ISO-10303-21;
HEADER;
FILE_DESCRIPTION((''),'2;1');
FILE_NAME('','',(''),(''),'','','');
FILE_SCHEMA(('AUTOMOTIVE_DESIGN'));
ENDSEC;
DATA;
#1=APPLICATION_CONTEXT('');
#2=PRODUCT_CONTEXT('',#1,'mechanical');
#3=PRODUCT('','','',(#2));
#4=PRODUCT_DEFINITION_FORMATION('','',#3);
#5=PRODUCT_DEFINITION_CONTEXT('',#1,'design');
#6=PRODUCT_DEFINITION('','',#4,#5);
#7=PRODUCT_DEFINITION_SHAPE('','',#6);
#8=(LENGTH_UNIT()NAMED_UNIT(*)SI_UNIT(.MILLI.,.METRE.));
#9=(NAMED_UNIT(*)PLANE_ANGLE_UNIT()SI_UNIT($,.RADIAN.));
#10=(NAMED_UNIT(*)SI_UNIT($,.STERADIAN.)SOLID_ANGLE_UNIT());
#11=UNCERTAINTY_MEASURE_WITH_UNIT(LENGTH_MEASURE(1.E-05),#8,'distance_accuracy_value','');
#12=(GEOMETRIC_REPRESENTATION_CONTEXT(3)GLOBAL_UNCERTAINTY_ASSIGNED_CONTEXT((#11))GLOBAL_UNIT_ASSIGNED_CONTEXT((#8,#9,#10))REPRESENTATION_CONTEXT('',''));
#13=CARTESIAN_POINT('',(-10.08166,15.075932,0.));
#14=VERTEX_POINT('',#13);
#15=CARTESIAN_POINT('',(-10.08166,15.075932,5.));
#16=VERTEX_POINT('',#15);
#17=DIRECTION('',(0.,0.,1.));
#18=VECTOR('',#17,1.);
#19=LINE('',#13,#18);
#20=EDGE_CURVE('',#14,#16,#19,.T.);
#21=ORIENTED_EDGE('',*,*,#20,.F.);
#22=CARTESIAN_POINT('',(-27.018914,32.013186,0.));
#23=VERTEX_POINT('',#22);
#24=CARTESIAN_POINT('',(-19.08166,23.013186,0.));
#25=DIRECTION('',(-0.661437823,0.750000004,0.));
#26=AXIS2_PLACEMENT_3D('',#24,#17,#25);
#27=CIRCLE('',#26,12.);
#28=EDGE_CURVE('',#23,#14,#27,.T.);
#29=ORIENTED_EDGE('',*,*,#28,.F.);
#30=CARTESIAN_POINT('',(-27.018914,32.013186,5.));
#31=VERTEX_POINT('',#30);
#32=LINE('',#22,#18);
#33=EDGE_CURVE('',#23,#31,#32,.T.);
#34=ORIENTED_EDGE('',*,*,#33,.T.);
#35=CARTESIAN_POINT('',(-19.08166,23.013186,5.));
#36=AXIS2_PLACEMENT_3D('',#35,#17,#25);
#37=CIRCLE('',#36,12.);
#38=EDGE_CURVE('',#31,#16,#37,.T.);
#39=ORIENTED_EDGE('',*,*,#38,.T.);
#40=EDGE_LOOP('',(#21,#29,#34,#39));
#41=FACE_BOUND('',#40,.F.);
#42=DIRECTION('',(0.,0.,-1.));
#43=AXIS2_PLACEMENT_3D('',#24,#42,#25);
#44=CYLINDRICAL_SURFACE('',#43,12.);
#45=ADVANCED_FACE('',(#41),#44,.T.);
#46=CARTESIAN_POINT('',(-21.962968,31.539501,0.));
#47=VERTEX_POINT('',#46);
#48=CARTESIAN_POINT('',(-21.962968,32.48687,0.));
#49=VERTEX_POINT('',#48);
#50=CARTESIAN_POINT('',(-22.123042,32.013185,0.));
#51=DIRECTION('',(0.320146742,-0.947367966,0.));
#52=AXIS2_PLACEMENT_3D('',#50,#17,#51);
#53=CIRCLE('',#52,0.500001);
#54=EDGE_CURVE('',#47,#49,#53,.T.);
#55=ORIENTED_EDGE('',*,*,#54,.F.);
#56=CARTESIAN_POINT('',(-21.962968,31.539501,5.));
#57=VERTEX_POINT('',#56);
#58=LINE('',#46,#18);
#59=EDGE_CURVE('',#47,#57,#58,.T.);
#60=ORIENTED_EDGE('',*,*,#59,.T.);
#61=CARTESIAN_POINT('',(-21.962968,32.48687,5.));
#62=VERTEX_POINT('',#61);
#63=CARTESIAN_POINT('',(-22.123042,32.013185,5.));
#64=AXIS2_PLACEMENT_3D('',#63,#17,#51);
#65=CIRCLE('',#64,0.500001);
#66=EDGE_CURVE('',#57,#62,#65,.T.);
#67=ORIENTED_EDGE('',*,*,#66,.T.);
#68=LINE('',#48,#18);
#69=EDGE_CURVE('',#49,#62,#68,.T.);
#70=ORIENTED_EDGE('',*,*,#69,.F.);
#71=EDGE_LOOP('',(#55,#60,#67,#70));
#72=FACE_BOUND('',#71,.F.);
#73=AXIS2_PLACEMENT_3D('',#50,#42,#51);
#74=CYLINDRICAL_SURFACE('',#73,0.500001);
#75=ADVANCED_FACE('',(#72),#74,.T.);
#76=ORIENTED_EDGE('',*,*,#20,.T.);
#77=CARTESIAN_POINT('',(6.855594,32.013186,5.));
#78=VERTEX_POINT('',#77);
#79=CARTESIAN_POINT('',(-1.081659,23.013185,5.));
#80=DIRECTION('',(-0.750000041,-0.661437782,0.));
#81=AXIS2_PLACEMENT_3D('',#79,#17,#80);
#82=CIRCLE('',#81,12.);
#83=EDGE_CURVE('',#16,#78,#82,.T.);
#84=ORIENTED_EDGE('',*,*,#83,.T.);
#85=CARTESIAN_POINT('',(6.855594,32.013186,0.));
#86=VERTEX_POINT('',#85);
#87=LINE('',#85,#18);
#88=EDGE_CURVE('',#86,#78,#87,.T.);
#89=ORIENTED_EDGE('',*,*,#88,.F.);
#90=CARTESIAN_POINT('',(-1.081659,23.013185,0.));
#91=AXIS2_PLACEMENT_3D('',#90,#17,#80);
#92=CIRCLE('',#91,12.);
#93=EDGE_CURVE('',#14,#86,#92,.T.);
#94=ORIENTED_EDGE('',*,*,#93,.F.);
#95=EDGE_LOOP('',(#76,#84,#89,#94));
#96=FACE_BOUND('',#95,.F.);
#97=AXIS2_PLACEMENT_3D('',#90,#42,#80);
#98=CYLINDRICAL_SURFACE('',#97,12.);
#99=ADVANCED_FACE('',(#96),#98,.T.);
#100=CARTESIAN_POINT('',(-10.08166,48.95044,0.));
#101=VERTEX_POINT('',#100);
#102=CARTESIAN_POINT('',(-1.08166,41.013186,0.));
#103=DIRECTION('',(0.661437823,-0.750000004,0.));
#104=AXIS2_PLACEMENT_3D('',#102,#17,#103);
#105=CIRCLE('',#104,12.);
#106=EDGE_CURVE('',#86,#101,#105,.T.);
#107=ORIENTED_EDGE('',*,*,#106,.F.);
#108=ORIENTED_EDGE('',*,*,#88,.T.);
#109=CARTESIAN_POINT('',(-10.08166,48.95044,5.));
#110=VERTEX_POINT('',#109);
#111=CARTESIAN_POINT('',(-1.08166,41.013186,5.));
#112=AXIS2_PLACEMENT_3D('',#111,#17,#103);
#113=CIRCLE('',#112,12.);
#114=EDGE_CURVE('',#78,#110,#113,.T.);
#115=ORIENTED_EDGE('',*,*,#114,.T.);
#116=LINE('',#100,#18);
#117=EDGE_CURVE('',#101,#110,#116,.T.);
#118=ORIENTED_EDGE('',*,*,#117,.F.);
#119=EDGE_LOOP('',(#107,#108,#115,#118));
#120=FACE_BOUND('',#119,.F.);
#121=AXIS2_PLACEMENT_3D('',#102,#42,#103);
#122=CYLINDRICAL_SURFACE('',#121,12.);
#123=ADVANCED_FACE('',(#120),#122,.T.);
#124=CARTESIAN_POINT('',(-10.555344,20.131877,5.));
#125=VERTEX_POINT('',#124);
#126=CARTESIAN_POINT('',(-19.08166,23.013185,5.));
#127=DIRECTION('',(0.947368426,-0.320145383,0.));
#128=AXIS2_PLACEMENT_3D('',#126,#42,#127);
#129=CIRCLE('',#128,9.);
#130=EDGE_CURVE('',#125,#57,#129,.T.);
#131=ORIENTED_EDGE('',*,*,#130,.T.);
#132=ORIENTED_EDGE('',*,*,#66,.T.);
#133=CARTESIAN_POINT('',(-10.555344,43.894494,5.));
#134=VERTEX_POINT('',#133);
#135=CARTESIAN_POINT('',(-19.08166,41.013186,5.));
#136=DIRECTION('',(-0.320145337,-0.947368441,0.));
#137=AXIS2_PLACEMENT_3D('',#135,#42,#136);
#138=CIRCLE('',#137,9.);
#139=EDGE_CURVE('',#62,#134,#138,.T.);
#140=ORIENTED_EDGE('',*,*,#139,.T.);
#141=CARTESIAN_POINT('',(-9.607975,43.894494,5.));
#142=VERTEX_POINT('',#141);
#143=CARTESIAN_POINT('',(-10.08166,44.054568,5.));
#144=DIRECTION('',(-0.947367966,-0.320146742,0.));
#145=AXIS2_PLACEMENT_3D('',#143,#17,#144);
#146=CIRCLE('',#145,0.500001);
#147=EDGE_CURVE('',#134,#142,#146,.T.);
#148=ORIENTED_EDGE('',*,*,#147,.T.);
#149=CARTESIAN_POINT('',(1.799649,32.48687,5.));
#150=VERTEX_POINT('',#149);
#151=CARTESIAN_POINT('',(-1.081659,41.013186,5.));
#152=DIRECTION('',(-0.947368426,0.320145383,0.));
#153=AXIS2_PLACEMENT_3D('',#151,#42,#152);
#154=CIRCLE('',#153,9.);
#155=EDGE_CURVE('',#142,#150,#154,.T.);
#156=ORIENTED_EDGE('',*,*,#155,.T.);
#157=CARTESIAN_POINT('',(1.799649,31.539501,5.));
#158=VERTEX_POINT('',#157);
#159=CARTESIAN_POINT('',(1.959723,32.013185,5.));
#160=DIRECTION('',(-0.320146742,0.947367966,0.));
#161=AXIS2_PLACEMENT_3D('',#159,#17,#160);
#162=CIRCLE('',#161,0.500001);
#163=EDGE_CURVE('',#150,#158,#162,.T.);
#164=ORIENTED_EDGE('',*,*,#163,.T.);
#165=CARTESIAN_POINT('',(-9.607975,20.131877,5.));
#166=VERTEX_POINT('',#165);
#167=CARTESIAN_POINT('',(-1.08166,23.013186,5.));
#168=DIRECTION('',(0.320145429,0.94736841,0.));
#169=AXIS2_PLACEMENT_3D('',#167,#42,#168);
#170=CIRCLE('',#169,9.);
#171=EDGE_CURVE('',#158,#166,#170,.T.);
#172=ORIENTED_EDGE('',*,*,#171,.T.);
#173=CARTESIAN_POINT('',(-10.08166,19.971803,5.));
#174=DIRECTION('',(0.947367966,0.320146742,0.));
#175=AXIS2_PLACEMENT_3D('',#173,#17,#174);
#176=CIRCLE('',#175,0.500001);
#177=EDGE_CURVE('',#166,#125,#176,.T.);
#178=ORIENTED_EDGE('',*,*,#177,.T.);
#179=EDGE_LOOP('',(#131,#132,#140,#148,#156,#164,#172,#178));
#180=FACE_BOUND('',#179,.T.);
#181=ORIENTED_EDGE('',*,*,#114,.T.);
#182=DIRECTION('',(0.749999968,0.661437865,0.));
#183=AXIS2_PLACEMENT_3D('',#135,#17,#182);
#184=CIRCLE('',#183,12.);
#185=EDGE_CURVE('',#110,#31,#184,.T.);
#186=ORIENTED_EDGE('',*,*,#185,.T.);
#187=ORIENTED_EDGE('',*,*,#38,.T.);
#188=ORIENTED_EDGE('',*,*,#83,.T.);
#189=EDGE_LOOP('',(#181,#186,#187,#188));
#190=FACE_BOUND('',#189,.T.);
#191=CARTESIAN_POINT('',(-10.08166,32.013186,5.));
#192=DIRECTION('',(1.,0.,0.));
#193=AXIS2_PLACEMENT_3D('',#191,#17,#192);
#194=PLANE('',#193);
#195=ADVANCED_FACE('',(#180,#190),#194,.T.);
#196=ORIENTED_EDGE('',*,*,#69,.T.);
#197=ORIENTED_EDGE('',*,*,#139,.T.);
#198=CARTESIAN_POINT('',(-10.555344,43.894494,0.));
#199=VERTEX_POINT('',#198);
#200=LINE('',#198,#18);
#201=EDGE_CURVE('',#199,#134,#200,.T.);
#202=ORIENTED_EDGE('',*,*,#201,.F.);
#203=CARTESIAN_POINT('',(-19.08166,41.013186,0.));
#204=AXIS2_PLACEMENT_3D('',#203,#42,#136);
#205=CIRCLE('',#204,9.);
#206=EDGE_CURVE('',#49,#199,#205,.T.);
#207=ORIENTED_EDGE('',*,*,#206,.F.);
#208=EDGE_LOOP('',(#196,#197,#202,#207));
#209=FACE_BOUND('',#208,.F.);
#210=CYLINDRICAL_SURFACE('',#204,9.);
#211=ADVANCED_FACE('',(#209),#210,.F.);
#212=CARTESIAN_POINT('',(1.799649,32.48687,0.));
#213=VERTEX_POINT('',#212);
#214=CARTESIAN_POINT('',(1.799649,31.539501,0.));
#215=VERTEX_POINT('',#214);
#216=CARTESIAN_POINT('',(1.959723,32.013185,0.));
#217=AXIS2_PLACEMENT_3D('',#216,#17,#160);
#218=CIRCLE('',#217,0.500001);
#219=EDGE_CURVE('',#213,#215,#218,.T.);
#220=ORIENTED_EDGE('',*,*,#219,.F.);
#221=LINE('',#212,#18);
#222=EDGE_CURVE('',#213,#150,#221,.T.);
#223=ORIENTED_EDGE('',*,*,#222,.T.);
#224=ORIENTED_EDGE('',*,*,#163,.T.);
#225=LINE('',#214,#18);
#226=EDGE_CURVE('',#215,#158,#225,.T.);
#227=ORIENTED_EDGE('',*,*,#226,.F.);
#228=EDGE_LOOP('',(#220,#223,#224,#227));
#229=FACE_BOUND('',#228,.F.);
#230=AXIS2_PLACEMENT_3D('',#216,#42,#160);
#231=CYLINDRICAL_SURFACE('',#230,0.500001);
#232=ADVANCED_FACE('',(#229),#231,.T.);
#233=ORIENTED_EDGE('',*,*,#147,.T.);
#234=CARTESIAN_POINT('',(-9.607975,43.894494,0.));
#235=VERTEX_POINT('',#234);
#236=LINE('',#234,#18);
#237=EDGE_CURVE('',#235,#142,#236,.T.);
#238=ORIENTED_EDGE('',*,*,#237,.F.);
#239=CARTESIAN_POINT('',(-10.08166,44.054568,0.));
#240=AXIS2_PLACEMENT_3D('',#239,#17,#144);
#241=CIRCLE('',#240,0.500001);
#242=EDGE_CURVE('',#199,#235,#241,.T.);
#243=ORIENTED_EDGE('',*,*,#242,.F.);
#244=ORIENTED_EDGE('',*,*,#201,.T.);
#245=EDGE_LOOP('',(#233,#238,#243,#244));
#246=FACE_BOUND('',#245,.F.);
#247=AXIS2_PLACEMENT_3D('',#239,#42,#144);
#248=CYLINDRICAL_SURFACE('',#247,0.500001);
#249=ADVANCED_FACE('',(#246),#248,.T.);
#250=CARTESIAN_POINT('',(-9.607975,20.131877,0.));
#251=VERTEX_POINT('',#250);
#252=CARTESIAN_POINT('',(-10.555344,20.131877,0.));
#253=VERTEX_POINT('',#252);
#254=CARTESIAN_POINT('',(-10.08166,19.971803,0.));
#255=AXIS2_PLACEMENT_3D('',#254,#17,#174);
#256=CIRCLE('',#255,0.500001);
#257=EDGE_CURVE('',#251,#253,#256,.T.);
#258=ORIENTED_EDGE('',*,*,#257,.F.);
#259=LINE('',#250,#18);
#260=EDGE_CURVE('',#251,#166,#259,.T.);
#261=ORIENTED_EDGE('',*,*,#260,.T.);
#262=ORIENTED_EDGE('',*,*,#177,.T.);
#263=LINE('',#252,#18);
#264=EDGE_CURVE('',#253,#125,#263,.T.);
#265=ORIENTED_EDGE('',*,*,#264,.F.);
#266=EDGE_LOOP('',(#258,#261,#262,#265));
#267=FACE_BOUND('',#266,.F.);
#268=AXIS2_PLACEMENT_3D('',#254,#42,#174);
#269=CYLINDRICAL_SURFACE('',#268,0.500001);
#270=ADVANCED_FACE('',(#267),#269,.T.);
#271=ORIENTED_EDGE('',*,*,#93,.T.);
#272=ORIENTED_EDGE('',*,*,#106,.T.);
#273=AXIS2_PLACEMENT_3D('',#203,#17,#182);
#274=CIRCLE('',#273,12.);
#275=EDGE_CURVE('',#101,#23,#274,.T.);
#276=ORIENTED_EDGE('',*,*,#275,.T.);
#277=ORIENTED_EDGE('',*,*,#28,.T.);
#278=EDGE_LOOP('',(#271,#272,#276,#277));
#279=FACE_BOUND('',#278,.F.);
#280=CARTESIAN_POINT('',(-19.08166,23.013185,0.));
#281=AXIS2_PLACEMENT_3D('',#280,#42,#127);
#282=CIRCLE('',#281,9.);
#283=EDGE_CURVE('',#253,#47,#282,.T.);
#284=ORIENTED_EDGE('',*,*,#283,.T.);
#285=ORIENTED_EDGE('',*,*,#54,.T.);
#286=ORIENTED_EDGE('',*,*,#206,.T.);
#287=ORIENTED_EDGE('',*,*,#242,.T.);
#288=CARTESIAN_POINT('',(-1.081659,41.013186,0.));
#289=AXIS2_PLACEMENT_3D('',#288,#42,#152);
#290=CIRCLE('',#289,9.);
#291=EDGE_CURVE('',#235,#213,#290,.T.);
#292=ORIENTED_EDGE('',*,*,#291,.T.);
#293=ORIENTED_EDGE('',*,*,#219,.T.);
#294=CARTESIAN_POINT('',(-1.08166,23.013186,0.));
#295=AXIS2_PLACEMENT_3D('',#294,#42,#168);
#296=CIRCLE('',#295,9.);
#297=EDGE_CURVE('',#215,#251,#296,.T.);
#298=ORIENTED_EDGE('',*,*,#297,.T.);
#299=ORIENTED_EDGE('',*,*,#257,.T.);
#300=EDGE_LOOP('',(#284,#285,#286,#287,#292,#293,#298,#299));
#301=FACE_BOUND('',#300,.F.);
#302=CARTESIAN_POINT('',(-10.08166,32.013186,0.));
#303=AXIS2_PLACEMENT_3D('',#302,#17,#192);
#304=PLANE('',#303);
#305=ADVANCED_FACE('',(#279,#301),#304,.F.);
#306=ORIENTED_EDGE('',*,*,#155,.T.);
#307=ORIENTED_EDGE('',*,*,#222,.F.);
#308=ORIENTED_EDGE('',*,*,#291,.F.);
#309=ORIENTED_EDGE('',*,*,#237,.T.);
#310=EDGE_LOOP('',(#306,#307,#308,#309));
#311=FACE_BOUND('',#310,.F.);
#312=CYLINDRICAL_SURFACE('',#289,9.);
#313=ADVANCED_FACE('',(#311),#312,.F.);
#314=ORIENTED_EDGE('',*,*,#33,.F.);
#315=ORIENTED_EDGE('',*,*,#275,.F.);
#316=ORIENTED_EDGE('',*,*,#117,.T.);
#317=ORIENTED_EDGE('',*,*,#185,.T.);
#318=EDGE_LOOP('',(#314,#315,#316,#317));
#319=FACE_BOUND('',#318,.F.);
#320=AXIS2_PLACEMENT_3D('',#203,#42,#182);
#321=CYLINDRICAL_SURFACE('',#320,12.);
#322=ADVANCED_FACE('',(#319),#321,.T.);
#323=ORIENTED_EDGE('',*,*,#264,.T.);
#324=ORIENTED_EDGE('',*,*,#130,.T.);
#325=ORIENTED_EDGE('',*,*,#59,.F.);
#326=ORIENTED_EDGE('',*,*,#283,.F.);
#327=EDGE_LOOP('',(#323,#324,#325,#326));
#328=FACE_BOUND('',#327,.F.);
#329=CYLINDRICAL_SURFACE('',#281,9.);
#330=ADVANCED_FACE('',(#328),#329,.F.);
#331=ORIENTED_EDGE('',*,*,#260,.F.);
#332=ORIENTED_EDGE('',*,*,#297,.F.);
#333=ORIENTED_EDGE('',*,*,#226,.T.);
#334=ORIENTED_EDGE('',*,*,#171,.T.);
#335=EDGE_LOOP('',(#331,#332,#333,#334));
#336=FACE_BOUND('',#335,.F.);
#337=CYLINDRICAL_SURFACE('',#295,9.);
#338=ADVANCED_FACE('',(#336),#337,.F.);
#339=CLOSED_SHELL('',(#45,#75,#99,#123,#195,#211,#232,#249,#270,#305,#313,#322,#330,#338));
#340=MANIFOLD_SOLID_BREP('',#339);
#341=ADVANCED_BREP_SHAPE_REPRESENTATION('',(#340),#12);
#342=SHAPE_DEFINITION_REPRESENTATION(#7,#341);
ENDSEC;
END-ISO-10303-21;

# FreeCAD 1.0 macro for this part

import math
import FreeCAD as App
import Part
import Sketcher

doc = App.newDocument("Part")
params = doc.addObject("Spreadsheet::Sheet", "Params")
for row, (alias, value) in enumerate([
    ("sketch1_radius", "12 mm"),
    ("sketch1_radius2", "9 mm"),
    ("sketch1_radius3", "0.500001 mm"),
    ("pad1_length", "5 mm"),
], start=1):
    params.set(f"A{row}", alias)
    params.set(f"B{row}", "=" + value)
    params.setAlias(f"B{row}", alias)

body = doc.addObject("PartDesign::Body", "Body")

# Sketch on XY plane
sketch1 = doc.addObject("Sketcher::SketchObject", "Sketch")
body.addObject(sketch1)
sketch1.AttachmentSupport = (doc.XY_Plane, [""])
sketch1.MapMode = "FlatFace"
sketch1.addGeometry([
    Part.ArcOfCircle(Part.Circle(App.Vector(-1.1, 41, 0), App.Vector(0, 0, 1), 12), math.radians(-49), math.radians(139)),  # 0
    Part.ArcOfCircle(Part.Circle(App.Vector(-19.1, 41, 0), App.Vector(0, 0, 1), 12), math.radians(41), math.radians(229)),  # 1
    Part.ArcOfCircle(Part.Circle(App.Vector(-19.1, 23, 0), App.Vector(0, 0, 1), 12), math.radians(131), math.radians(319)),  # 2
    Part.ArcOfCircle(Part.Circle(App.Vector(-1.1, 23, 0), App.Vector(0, 0, 1), 12), math.radians(-139), math.radians(49)),  # 3
    Part.ArcOfCircle(Part.Circle(App.Vector(-10.1, 20, 0), App.Vector(0, 0, 1), 0.5), math.radians(19), math.radians(161)),  # 4
    Part.ArcOfCircle(Part.Circle(App.Vector(-19.1, 23, 0), App.Vector(0, 0, 1), 9), math.radians(109), math.radians(341)),  # 5
    Part.ArcOfCircle(Part.Circle(App.Vector(-22.1, 32, 0), App.Vector(0, 0, 1), 0.5), math.radians(-71), math.radians(71)),  # 6
    Part.ArcOfCircle(Part.Circle(App.Vector(-19.1, 41, 0), App.Vector(0, 0, 1), 9), math.radians(19), math.radians(251)),  # 7
    Part.ArcOfCircle(Part.Circle(App.Vector(-10.1, 44.1, 0), App.Vector(0, 0, 1), 0.5), math.radians(-161), math.radians(-19)),  # 8
    Part.ArcOfCircle(Part.Circle(App.Vector(-1.1, 41, 0), App.Vector(0, 0, 1), 9), math.radians(-71), math.radians(161)),  # 9
    Part.ArcOfCircle(Part.Circle(App.Vector(2, 32, 0), App.Vector(0, 0, 1), 0.5), math.radians(109), math.radians(251)),  # 10
    Part.ArcOfCircle(Part.Circle(App.Vector(-1.1, 23, 0), App.Vector(0, 0, 1), 9), math.radians(-161), math.radians(71)),  # 11
], False)
sketch1.addConstraint([
    Sketcher.Constraint("Coincident", 0, 2, 1, 1),
    Sketcher.Constraint("Coincident", 1, 2, 2, 1),
    Sketcher.Constraint("Coincident", 2, 2, 3, 1),
    Sketcher.Constraint("Coincident", 3, 2, 0, 1),
    Sketcher.Constraint("Tangent", 4, 2, 5, 2),
    Sketcher.Constraint("Tangent", 5, 1, 6, 1),
    Sketcher.Constraint("Tangent", 6, 2, 7, 2),
    Sketcher.Constraint("Tangent", 7, 1, 8, 1),
    Sketcher.Constraint("Tangent", 8, 2, 9, 2),
    Sketcher.Constraint("Tangent", 9, 1, 10, 1),
    Sketcher.Constraint("Tangent", 10, 2, 11, 2),
    Sketcher.Constraint("Tangent", 11, 1, 4, 1),
    Sketcher.Constraint("Coincident", 5, 3, 2, 3),
    Sketcher.Constraint("Coincident", 7, 3, 1, 3),
    Sketcher.Constraint("Coincident", 9, 3, 0, 3),
    Sketcher.Constraint("Coincident", 11, 3, 3, 3),
    Sketcher.Constraint("Equal", 0, 1),
    Sketcher.Constraint("Equal", 1, 2),
    Sketcher.Constraint("Equal", 2, 3),
    Sketcher.Constraint("Equal", 4, 6),
    Sketcher.Constraint("Equal", 5, 7),
    Sketcher.Constraint("Equal", 6, 8),
    Sketcher.Constraint("Equal", 7, 9),
    Sketcher.Constraint("Equal", 8, 10),
    Sketcher.Constraint("Equal", 9, 11),
    Sketcher.Constraint("Horizontal", 0, 3, 1, 3),
    Sketcher.Constraint("Horizontal", 2, 3, 3, 3),
    Sketcher.Constraint("Horizontal", 6, 3, 10, 3),
    Sketcher.Constraint("Horizontal", 10, 3, 1, 2),
    Sketcher.Constraint("Radius", 0, 12.0),
    Sketcher.Constraint("Radius", 5, 9.0),
    Sketcher.Constraint("Radius", 4, 0.500001),
    Sketcher.Constraint("DistanceX", 1, 3, 0, 3, 18.0),
    Sketcher.Constraint("DistanceY", 2, 3, 1, 3, 18.0),
    Sketcher.Constraint("DistanceY", -1, 1, 5, 1, 31.539501),
    Sketcher.Constraint("DistanceX", 0, 3, -1, 1, 1.08166),
])
sketch1.setExpression("Constraints[29]", "Params.sketch1_radius")
sketch1.setExpression("Constraints[30]", "Params.sketch1_radius2")
sketch1.setExpression("Constraints[31]", "Params.sketch1_radius3")
pad1 = doc.addObject("PartDesign::Pad", "Pad")
body.addObject(pad1)
pad1.Profile = sketch1
pad1.setExpression("Length", "Params.pad1_length")

doc.recompute()
